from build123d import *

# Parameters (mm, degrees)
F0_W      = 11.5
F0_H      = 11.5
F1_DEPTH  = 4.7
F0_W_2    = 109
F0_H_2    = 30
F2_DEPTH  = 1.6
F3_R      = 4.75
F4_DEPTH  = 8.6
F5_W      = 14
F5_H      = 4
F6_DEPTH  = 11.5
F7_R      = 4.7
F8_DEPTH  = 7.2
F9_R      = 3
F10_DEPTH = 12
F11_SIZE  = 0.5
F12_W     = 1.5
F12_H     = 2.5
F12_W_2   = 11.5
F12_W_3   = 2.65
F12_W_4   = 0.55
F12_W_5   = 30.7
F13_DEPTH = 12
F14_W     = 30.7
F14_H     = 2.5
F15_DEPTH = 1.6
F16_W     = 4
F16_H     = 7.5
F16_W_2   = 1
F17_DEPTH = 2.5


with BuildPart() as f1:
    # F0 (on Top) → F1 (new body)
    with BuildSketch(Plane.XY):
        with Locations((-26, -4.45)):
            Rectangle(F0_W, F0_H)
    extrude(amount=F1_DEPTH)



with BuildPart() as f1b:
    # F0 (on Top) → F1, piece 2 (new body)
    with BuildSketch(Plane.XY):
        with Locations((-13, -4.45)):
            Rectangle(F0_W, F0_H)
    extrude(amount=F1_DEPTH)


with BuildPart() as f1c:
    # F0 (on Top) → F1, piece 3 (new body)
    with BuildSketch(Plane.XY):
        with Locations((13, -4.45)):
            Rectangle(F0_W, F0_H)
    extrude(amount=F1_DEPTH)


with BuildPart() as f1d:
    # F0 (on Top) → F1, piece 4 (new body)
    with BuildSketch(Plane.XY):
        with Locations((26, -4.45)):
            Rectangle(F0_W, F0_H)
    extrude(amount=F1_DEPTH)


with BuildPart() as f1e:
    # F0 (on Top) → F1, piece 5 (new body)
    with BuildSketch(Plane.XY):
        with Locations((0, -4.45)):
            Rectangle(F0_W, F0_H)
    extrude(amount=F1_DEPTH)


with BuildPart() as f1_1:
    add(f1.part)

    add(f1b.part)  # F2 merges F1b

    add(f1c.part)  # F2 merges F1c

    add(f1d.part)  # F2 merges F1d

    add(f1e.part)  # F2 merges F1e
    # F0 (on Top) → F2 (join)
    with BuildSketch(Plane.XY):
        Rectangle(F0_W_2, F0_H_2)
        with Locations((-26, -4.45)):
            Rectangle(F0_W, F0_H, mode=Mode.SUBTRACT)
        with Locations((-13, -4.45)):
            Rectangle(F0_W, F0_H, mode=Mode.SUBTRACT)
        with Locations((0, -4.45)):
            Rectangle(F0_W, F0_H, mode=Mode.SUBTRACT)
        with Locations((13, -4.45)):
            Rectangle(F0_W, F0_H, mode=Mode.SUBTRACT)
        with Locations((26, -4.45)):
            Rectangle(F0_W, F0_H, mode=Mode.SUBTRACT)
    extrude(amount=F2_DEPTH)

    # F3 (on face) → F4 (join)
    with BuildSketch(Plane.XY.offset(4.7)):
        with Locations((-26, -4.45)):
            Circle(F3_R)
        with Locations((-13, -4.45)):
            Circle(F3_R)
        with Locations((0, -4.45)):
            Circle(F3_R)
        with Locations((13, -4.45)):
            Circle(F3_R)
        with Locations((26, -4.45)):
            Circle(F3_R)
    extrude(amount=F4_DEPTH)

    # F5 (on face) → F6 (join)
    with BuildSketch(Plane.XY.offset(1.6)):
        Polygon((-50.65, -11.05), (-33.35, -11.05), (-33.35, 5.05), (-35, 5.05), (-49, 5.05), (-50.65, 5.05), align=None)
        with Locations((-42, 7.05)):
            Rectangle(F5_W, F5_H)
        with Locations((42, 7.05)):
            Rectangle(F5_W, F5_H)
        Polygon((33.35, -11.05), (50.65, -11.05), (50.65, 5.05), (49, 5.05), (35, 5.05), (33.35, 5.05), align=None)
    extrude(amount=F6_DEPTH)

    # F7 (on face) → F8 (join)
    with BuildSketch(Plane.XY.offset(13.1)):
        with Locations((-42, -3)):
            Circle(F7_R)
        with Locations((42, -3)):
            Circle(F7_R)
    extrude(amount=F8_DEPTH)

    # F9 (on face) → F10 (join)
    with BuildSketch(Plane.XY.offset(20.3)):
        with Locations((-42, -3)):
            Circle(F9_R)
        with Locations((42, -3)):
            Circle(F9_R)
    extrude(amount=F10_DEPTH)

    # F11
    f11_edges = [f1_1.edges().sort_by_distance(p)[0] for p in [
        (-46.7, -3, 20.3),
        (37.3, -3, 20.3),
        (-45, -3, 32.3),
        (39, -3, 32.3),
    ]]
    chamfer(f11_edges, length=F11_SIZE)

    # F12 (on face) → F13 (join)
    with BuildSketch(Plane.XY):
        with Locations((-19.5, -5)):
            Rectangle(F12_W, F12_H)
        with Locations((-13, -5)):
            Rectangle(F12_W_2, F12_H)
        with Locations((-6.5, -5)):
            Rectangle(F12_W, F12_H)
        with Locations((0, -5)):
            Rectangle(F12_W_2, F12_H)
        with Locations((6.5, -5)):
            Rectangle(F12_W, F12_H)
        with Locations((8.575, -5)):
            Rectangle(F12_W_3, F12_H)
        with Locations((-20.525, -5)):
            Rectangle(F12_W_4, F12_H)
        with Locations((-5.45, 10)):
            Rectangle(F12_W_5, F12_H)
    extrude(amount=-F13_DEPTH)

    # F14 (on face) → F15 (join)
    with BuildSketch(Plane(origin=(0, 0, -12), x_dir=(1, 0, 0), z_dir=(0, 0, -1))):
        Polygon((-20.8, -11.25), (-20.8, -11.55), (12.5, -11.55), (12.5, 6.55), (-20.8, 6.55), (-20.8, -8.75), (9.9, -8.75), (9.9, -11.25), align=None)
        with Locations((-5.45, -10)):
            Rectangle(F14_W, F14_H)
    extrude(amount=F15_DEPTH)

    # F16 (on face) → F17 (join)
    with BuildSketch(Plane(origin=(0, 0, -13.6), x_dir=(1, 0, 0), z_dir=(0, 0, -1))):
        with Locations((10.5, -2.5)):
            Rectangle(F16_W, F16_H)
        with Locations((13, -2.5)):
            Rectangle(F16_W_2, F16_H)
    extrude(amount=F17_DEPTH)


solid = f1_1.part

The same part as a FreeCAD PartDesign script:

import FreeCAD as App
import Part
import Sketcher
from FreeCAD import Vector


def edges_at(feature, points):
    """Names of the edges that pass closest to the given points."""
    edges = feature.Shape.Edges
    near = lambda p: min(range(len(edges)), key=lambda i: edges[i].distToShape(Part.Vertex(*p))[0])
    return sorted({f"Edge{near(p) + 1}" for p in points})


def add_polygon(sketch, points):
    """Adds a closed chain of lines whose ends are joined by coincident constraints."""
    first, n = sketch.GeometryCount, len(points)
    for a, b in zip(points, points[1:] + points[:1]):
        sketch.addGeometry(Part.LineSegment(App.Vector(*a, 0), App.Vector(*b, 0)), False)
    for i in range(n):
        sketch.addConstraint(Sketcher.Constraint("Coincident", first + i, 2, first + (i + 1) % n, 1))

doc = App.newDocument("Part")
body = doc.addObject("PartDesign::Body", "Body")

# Sketch on XY plane
sketch1 = doc.addObject("Sketcher::SketchObject", "Sketch")
body.addObject(sketch1)
sketch1.AttachmentSupport = (doc.XY_Plane, [""])
sketch1.MapMode = "FlatFace"
add_polygon(sketch1, [(-32, 1), (-32, -10), (-20, -10), (-20, 1)])  # lines 0-3
sketch1.addConstraint(Sketcher.Constraint("Vertical", 0))
sketch1.addConstraint(Sketcher.Constraint("Horizontal", 1))
sketch1.addConstraint(Sketcher.Constraint("Vertical", 2))
sketch1.addConstraint(Sketcher.Constraint("Horizontal", 3))
sketch1.addConstraint(Sketcher.Constraint("Equal", 3, 0))
sketch1.addConstraint(Sketcher.Constraint("DistanceX", 1, 1, 1, 2, 11.5))
sketch1.addConstraint(Sketcher.Constraint("DistanceY", 0, 2, -1, 1, 10.2))
sketch1.addConstraint(Sketcher.Constraint("DistanceX", 0, 2, -1, 1, 31.75))
pad1 = doc.addObject("PartDesign::Pad", "Pad")
body.addObject(pad1)
pad1.Profile = sketch1
pad1.Length = 4.7
body2 = doc.addObject("PartDesign::Body", "Body001")

# Sketch on XY plane
sketch2 = doc.addObject("Sketcher::SketchObject", "Sketch001")
body2.addObject(sketch2)
sketch2.AttachmentSupport = (doc.getObject("XY_Plane001"), [""])
sketch2.MapMode = "FlatFace"
add_polygon(sketch2, [(-19, 1), (-19, -10), (-7, -10), (-7, 1)])  # lines 0-3
sketch2.addConstraint(Sketcher.Constraint("Vertical", 0))
sketch2.addConstraint(Sketcher.Constraint("Horizontal", 1))
sketch2.addConstraint(Sketcher.Constraint("Vertical", 2))
sketch2.addConstraint(Sketcher.Constraint("Horizontal", 3))
sketch2.addConstraint(Sketcher.Constraint("Equal", 3, 0))
sketch2.addConstraint(Sketcher.Constraint("DistanceX", 1, 1, 1, 2, 11.5))
sketch2.addConstraint(Sketcher.Constraint("DistanceY", 0, 2, -1, 1, 10.2))
sketch2.addConstraint(Sketcher.Constraint("DistanceX", 0, 2, -1, 1, 18.75))
pad2 = doc.addObject("PartDesign::Pad", "Pad001")
body2.addObject(pad2)
pad2.Profile = sketch2
pad2.Length = 4.7
body3 = doc.addObject("PartDesign::Body", "Body002")

# Sketch on XY plane
sketch3 = doc.addObject("Sketcher::SketchObject", "Sketch002")
body3.addObject(sketch3)
sketch3.AttachmentSupport = (doc.getObject("XY_Plane002"), [""])
sketch3.MapMode = "FlatFace"
add_polygon(sketch3, [(7, 1), (7, -10), (19, -10), (19, 1)])  # lines 0-3
sketch3.addConstraint(Sketcher.Constraint("Vertical", 0))
sketch3.addConstraint(Sketcher.Constraint("Horizontal", 1))
sketch3.addConstraint(Sketcher.Constraint("Vertical", 2))
sketch3.addConstraint(Sketcher.Constraint("Horizontal", 3))
sketch3.addConstraint(Sketcher.Constraint("Equal", 3, 0))
sketch3.addConstraint(Sketcher.Constraint("DistanceX", 1, 1, 1, 2, 11.5))
sketch3.addConstraint(Sketcher.Constraint("DistanceY", 0, 2, -1, 1, 10.2))
sketch3.addConstraint(Sketcher.Constraint("DistanceX", -1, 1, 0, 2, 7.25))
pad3 = doc.addObject("PartDesign::Pad", "Pad002")
body3.addObject(pad3)
pad3.Profile = sketch3
pad3.Length = 4.7
body4 = doc.addObject("PartDesign::Body", "Body003")

# Sketch on XY plane
sketch4 = doc.addObject("Sketcher::SketchObject", "Sketch003")
body4.addObject(sketch4)
sketch4.AttachmentSupport = (doc.getObject("XY_Plane003"), [""])
sketch4.MapMode = "FlatFace"
add_polygon(sketch4, [(20, 1), (20, -10), (32, -10), (32, 1)])  # lines 0-3
sketch4.addConstraint(Sketcher.Constraint("Vertical", 0))
sketch4.addConstraint(Sketcher.Constraint("Horizontal", 1))
sketch4.addConstraint(Sketcher.Constraint("Vertical", 2))
sketch4.addConstraint(Sketcher.Constraint("Horizontal", 3))
sketch4.addConstraint(Sketcher.Constraint("Equal", 3, 0))
sketch4.addConstraint(Sketcher.Constraint("DistanceX", 1, 1, 1, 2, 11.5))
sketch4.addConstraint(Sketcher.Constraint("DistanceY", 0, 2, -1, 1, 10.2))
sketch4.addConstraint(Sketcher.Constraint("DistanceX", -1, 1, 0, 2, 20.25))
pad4 = doc.addObject("PartDesign::Pad", "Pad003")
body4.addObject(pad4)
pad4.Profile = sketch4
pad4.Length = 4.7
body5 = doc.addObject("PartDesign::Body", "Body004")

# Sketch on XY plane
sketch5 = doc.addObject("Sketcher::SketchObject", "Sketch004")
body5.addObject(sketch5)
sketch5.AttachmentSupport = (doc.getObject("XY_Plane004"), [""])
sketch5.MapMode = "FlatFace"
add_polygon(sketch5, [(-6, 1), (-6, -10), (6, -10), (6, 1)])  # lines 0-3
sketch5.addConstraint(Sketcher.Constraint("Vertical", 0))
sketch5.addConstraint(Sketcher.Constraint("Horizontal", 1))
sketch5.addConstraint(Sketcher.Constraint("Vertical", 2))
sketch5.addConstraint(Sketcher.Constraint("Horizontal", 3))
sketch5.addConstraint(Sketcher.Constraint("Equal", 3, 0))
sketch5.addConstraint(Sketcher.Constraint("DistanceX", 1, 1, 1, 2, 11.5))
sketch5.addConstraint(Sketcher.Constraint("DistanceY", 0, 2, -1, 1, 10.2))
sketch5.addConstraint(Sketcher.Constraint("DistanceX", 0, 2, -1, 1, 5.75))
pad5 = doc.addObject("PartDesign::Pad", "Pad004")
body5.addObject(pad5)
pad5.Profile = sketch5
pad5.Length = 4.7
body.AllowCompound = True
doc.recompute()

boolean = doc.addObject("PartDesign::Boolean", "Boolean")
body.addObject(boolean)
boolean.Type = "Fuse"
boolean.addObjects([body2])
doc.recompute()

boolean2 = doc.addObject("PartDesign::Boolean", "Boolean001")
body.addObject(boolean2)
boolean2.Type = "Fuse"
boolean2.addObjects([body3])
doc.recompute()

boolean3 = doc.addObject("PartDesign::Boolean", "Boolean002")
body.addObject(boolean3)
boolean3.Type = "Fuse"
boolean3.addObjects([body4])
doc.recompute()

boolean4 = doc.addObject("PartDesign::Boolean", "Boolean003")
body.addObject(boolean4)
boolean4.Type = "Fuse"
boolean4.addObjects([body5])

# Sketch on XY plane
sketch6 = doc.addObject("Sketcher::SketchObject", "Sketch005")
body.addObject(sketch6)
sketch6.AttachmentSupport = (doc.XY_Plane, [""])
sketch6.MapMode = "FlatFace"
add_polygon(sketch6, [(-54, 15), (-54, -15), (54, -15), (54, 15)])  # lines 0-3
add_polygon(sketch6, [(-20, -10), (-32, -10), (-32, 1), (-20, 1)])  # lines 4-7
add_polygon(sketch6, [(-7, -10), (-19, -10), (-19, 1), (-7, 1)])  # lines 8-11
add_polygon(sketch6, [(6, -10), (-6, -10), (-6, 1), (6, 1)])  # lines 12-15
add_polygon(sketch6, [(19, -10), (7, -10), (7, 1), (19, 1)])  # lines 16-19
add_polygon(sketch6, [(32, -10), (20, -10), (20, 1), (32, 1)])  # lines 20-23
sketch6.addConstraint(Sketcher.Constraint("Vertical", 0))
sketch6.addConstraint(Sketcher.Constraint("Horizontal", 1))
sketch6.addConstraint(Sketcher.Constraint("Vertical", 2))
sketch6.addConstraint(Sketcher.Constraint("Horizontal", 3))
sketch6.addConstraint(Sketcher.Constraint("Horizontal", 4))
sketch6.addConstraint(Sketcher.Constraint("Vertical", 5))
sketch6.addConstraint(Sketcher.Constraint("Horizontal", 6))
sketch6.addConstraint(Sketcher.Constraint("Vertical", 7))
sketch6.addConstraint(Sketcher.Constraint("Horizontal", 8))
sketch6.addConstraint(Sketcher.Constraint("Vertical", 9))
sketch6.addConstraint(Sketcher.Constraint("Horizontal", 10))
sketch6.addConstraint(Sketcher.Constraint("Vertical", 11))
sketch6.addConstraint(Sketcher.Constraint("Horizontal", 12))
sketch6.addConstraint(Sketcher.Constraint("Vertical", 13))
sketch6.addConstraint(Sketcher.Constraint("Horizontal", 14))
sketch6.addConstraint(Sketcher.Constraint("Vertical", 15))
sketch6.addConstraint(Sketcher.Constraint("Horizontal", 16))
sketch6.addConstraint(Sketcher.Constraint("Vertical", 17))
sketch6.addConstraint(Sketcher.Constraint("Horizontal", 18))
sketch6.addConstraint(Sketcher.Constraint("Vertical", 19))
sketch6.addConstraint(Sketcher.Constraint("Horizontal", 20))
sketch6.addConstraint(Sketcher.Constraint("Vertical", 21))
sketch6.addConstraint(Sketcher.Constraint("Horizontal", 22))
sketch6.addConstraint(Sketcher.Constraint("Vertical", 23))
sketch6.addConstraint(Sketcher.Constraint("Symmetric", 0, 2, 2, 2, -1, 1))
sketch6.addConstraint(Sketcher.Constraint("Symmetric", 11, 2, 16, 2, -2))
sketch6.addConstraint(Sketcher.Constraint("Symmetric", 9, 2, 18, 2, -2))
sketch6.addConstraint(Sketcher.Constraint("Symmetric", 7, 2, 20, 2, -2))
sketch6.addConstraint(Sketcher.Constraint("Symmetric", 5, 2, 22, 2, -2))
sketch6.addConstraint(Sketcher.Constraint("Horizontal", 7, 2, 8, 2))
sketch6.addConstraint(Sketcher.Constraint("Horizontal", 6, 2, 9, 2))
sketch6.addConstraint(Sketcher.Constraint("Horizontal", 11, 2, 12, 2))
sketch6.addConstraint(Sketcher.Constraint("Horizontal", 10, 2, 13, 2))
sketch6.addConstraint(Sketcher.Constraint("Equal", 6, 8))
sketch6.addConstraint(Sketcher.Constraint("Equal", 10, 12))
sketch6.addConstraint(Sketcher.Constraint("Equal", 22, 5))
sketch6.addConstraint(Sketcher.Constraint("DistanceX", 1, 1, 1, 2, 109.0))
sketch6.addConstraint(Sketcher.Constraint("DistanceY", 0, 2, 0, 1, 30.0))
sketch6.addConstraint(Sketcher.Constraint("DistanceX", 4, 2, 4, 1, 11.5))
sketch6.addConstraint(Sketcher.Constraint("DistanceX", 4, 2, 8, 2, 13.0))
sketch6.addConstraint(Sketcher.Constraint("DistanceX", 8, 2, 12, 2, 13.0))
sketch6.addConstraint(Sketcher.Constraint("DistanceX", 12, 2, 16, 2, 13.0))
sketch6.addConstraint(Sketcher.Constraint("DistanceY", 4, 2, -1, 1, 10.2))
pad6 = doc.addObject("PartDesign::Pad", "Pad005")
body.addObject(pad6)
pad6.Profile = sketch6
pad6.Length = 1.6

# Sketch on XY plane
sketch7 = doc.addObject("Sketcher::SketchObject", "Sketch006")
body.addObject(sketch7)
sketch7.AttachmentSupport = (doc.XY_Plane, [""])
sketch7.MapMode = "FlatFace"
sketch7.AttachmentOffset = App.Placement(Vector(0, 0, 4.7), App.Rotation())
sketch7.addGeometry(Part.Circle(Vector(-26, -4.5, 0), Vector(0, 0, 1), 4.8), False)
sketch7.addGeometry(Part.Circle(Vector(-13, -4.5, 0), Vector(0, 0, 1), 4.8), False)
sketch7.addGeometry(Part.Circle(Vector(0, -4.5, 0), Vector(0, 0, 1), 4.8), False)
sketch7.addGeometry(Part.Circle(Vector(13, -4.5, 0), Vector(0, 0, 1), 4.8), False)
sketch7.addGeometry(Part.Circle(Vector(26, -4.5, 0), Vector(0, 0, 1), 4.8), False)
sketch7.addConstraint(Sketcher.Constraint("Equal", 0, 1))
sketch7.addConstraint(Sketcher.Constraint("Equal", 1, 2))
sketch7.addConstraint(Sketcher.Constraint("Equal", 2, 3))
sketch7.addConstraint(Sketcher.Constraint("Equal", 3, 4))
sketch7.addConstraint(Sketcher.Constraint("Symmetric", 1, 3, 3, 3, -2))
sketch7.addConstraint(Sketcher.Constraint("Symmetric", 0, 3, 4, 3, -2))
sketch7.addConstraint(Sketcher.Constraint("PointOnObject", 2, 3, -2))
sketch7.addConstraint(Sketcher.Constraint("Horizontal", 0, 3, 1, 3))
sketch7.addConstraint(Sketcher.Constraint("Horizontal", 1, 3, 2, 3))
sketch7.addConstraint(Sketcher.Constraint("Diameter", 0, 9.5))
sketch7.addConstraint(Sketcher.Constraint("DistanceX", 0, 3, -1, 1, 26.0))
sketch7.addConstraint(Sketcher.Constraint("DistanceX", 1, 3, -1, 1, 13.0))
sketch7.addConstraint(Sketcher.Constraint("DistanceY", 0, 3, -1, 1, 4.45))
pad7 = doc.addObject("PartDesign::Pad", "Pad006")
body.addObject(pad7)
pad7.Profile = sketch7
pad7.Length = 8.6

# Sketch on XY plane
sketch8 = doc.addObject("Sketcher::SketchObject", "Sketch007")
body.addObject(sketch8)
sketch8.AttachmentSupport = (doc.XY_Plane, [""])
sketch8.MapMode = "FlatFace"
sketch8.AttachmentOffset = App.Placement(Vector(0, 0, 1.6), App.Rotation())
add_polygon(sketch8, [(-50.6, -11.1), (-33.4, -11.1), (-33.4, 5), (-35, 5), (-35, 9.1), (-49, 9.1), (-49, 5), (-50.6, 5)])  # lines 0-7
add_polygon(sketch8, [(35, 9.1), (35, 5), (33.4, 5), (33.4, -11.1), (50.6, -11.1), (50.6, 5), (49, 5), (49, 9.1)])  # lines 8-15
sketch8.addConstraint(Sketcher.Constraint("Horizontal", 0))
sketch8.addConstraint(Sketcher.Constraint("Vertical", 1))
sketch8.addConstraint(Sketcher.Constraint("Horizontal", 2))
sketch8.addConstraint(Sketcher.Constraint("Vertical", 3))
sketch8.addConstraint(Sketcher.Constraint("Horizontal", 4))
sketch8.addConstraint(Sketcher.Constraint("Vertical", 5))
sketch8.addConstraint(Sketcher.Constraint("Horizontal", 6))
sketch8.addConstraint(Sketcher.Constraint("Vertical", 7))
sketch8.addConstraint(Sketcher.Constraint("Vertical", 8))
sketch8.addConstraint(Sketcher.Constraint("Horizontal", 9))
sketch8.addConstraint(Sketcher.Constraint("Vertical", 10))
sketch8.addConstraint(Sketcher.Constraint("Horizontal", 11))
sketch8.addConstraint(Sketcher.Constraint("Vertical", 12))
sketch8.addConstraint(Sketcher.Constraint("Horizontal", 13))
sketch8.addConstraint(Sketcher.Constraint("Vertical", 14))
sketch8.addConstraint(Sketcher.Constraint("Horizontal", 15))
sketch8.addConstraint(Sketcher.Constraint("Symmetric", 2, 2, 8, 2, -2))
sketch8.addConstraint(Sketcher.Constraint("Symmetric", 0, 2, 10, 2, -2))
sketch8.addConstraint(Sketcher.Constraint("Symmetric", 6, 2, 12, 2, -2))
sketch8.addConstraint(Sketcher.Constraint("Symmetric", 4, 2, 14, 2, -2))
sketch8.addConstraint(Sketcher.Constraint("Horizontal", 2, 2, 5, 2))
sketch8.addConstraint(Sketcher.Constraint("Equal", 2, 6))
sketch8.addConstraint(Sketcher.Constraint("DistanceX", 4, 2, 4, 1, 14.0))
sketch8.addConstraint(Sketcher.Constraint("DistanceY", 3, 1, 3, 2, 4.0))
sketch8.addConstraint(Sketcher.Constraint("DistanceX", 0, 1, 0, 2, 17.3))
sketch8.addConstraint(Sketcher.Constraint("DistanceY", 1, 1, 1, 2, 16.1))
sketch8.addConstraint(Sketcher.Constraint("DistanceX", 2, 2, -1, 1, 35.0))
sketch8.addConstraint(Sketcher.Constraint("DistanceY", 0, 2, -1, 1, 11.05))
pad8 = doc.addObject("PartDesign::Pad", "Pad007")
body.addObject(pad8)
pad8.Profile = sketch8
pad8.Length = 11.5

# Sketch on XY plane
sketch9 = doc.addObject("Sketcher::SketchObject", "Sketch008")
body.addObject(sketch9)
sketch9.AttachmentSupport = (doc.XY_Plane, [""])
sketch9.MapMode = "FlatFace"
sketch9.AttachmentOffset = App.Placement(Vector(0, 0, 13.1), App.Rotation())
sketch9.addGeometry(Part.Circle(Vector(-42, -3, 0), Vector(0, 0, 1), 4.7), False)
sketch9.addGeometry(Part.Circle(Vector(42, -3, 0), Vector(0, 0, 1), 4.7), False)
sketch9.addConstraint(Sketcher.Constraint("Equal", 0, 1))
sketch9.addConstraint(Sketcher.Constraint("Symmetric", 0, 3, 1, 3, -2))
sketch9.addConstraint(Sketcher.Constraint("Diameter", 0, 9.4))
sketch9.addConstraint(Sketcher.Constraint("DistanceX", 0, 3, -1, 1, 42.0))
sketch9.addConstraint(Sketcher.Constraint("DistanceY", 0, 3, -1, 1, 3.0))
pad9 = doc.addObject("PartDesign::Pad", "Pad008")
body.addObject(pad9)
pad9.Profile = sketch9
pad9.Length = 7.2

# Sketch on XY plane
sketch10 = doc.addObject("Sketcher::SketchObject", "Sketch009")
body.addObject(sketch10)
sketch10.AttachmentSupport = (doc.XY_Plane, [""])
sketch10.MapMode = "FlatFace"
sketch10.AttachmentOffset = App.Placement(Vector(0, 0, 20.3), App.Rotation())
sketch10.addGeometry(Part.Circle(Vector(-42, -3, 0), Vector(0, 0, 1), 3), False)
sketch10.addGeometry(Part.Circle(Vector(42, -3, 0), Vector(0, 0, 1), 3), False)
sketch10.addConstraint(Sketcher.Constraint("Equal", 0, 1))
sketch10.addConstraint(Sketcher.Constraint("Symmetric", 0, 3, 1, 3, -2))
sketch10.addConstraint(Sketcher.Constraint("Diameter", 0, 6.0))
sketch10.addConstraint(Sketcher.Constraint("DistanceX", 0, 3, -1, 1, 42.0))
sketch10.addConstraint(Sketcher.Constraint("DistanceY", 0, 3, -1, 1, 3.0))
pad10 = doc.addObject("PartDesign::Pad", "Pad009")
body.addObject(pad10)
pad10.Profile = sketch10
pad10.Length = 12
doc.recompute()

chamfer = doc.addObject("PartDesign::Chamfer", "Chamfer")
body.addObject(chamfer)
chamfer.Base = (pad10, edges_at(pad10, [
    (-46.7, -3, 20.3),
    (37.3, -3, 20.3),
    (-45, -3, 32.3),
    (39, -3, 32.3),
]))
chamfer.Size = 0.5

# Sketch on XY plane
sketch11 = doc.addObject("Sketcher::SketchObject", "Sketch010")
body.addObject(sketch11)
sketch11.AttachmentSupport = (doc.XY_Plane, [""])
sketch11.MapMode = "FlatFace"
add_polygon(sketch11, [(9.9, -6.2), (9.9, -3.8), (-20.8, -3.8), (-20.8, -6.2)])  # lines 0-3
add_polygon(sketch11, [(-20.8, 11.2), (-20.8, 8.8), (9.9, 8.8), (9.9, 11.2)])  # lines 4-7
sketch11.addConstraint(Sketcher.Constraint("Vertical", 0))
sketch11.addConstraint(Sketcher.Constraint("Horizontal", 1))
sketch11.addConstraint(Sketcher.Constraint("Vertical", 2))
sketch11.addConstraint(Sketcher.Constraint("Horizontal", 3))
sketch11.addConstraint(Sketcher.Constraint("Vertical", 4))
sketch11.addConstraint(Sketcher.Constraint("Horizontal", 5))
sketch11.addConstraint(Sketcher.Constraint("Vertical", 6))
sketch11.addConstraint(Sketcher.Constraint("Horizontal", 7))
sketch11.addConstraint(Sketcher.Constraint("Vertical", 2, 2, 4, 2))
sketch11.addConstraint(Sketcher.Constraint("Vertical", 3, 2, 5, 2))
sketch11.addConstraint(Sketcher.Constraint("Equal", 2, 4))
sketch11.addConstraint(Sketcher.Constraint("DistanceX", 1, 2, 1, 1, 30.7))
sketch11.addConstraint(Sketcher.Constraint("DistanceY", 0, 1, 0, 2, 2.5))
sketch11.addConstraint(Sketcher.Constraint("DistanceY", 2, 2, 4, 2, 15.0))
sketch11.addConstraint(Sketcher.Constraint("DistanceX", -1, 1, 0, 2, 9.9))
sketch11.addConstraint(Sketcher.Constraint("DistanceY", 0, 2, -1, 1, 3.75))
pad11 = doc.addObject("PartDesign::Pad", "Pad010")
body.addObject(pad11)
pad11.Profile = sketch11
pad11.Length = 12
pad11.Reversed = True

# Sketch on XY plane
sketch12 = doc.addObject("Sketcher::SketchObject", "Sketch011")
body.addObject(sketch12)
sketch12.AttachmentSupport = (doc.XY_Plane, [""])
sketch12.MapMode = "FlatFace"
sketch12.AttachmentOffset = App.Placement(Vector(0, 0, -12), App.Rotation())
add_polygon(sketch12, [(-21, 12), (12, 12), (12, -7), (-21, -7)])  # lines 0-3
sketch12.addConstraint(Sketcher.Constraint("Horizontal", 0))
sketch12.addConstraint(Sketcher.Constraint("Vertical", 1))
sketch12.addConstraint(Sketcher.Constraint("Horizontal", 2))
sketch12.addConstraint(Sketcher.Constraint("Vertical", 3))
sketch12.addConstraint(Sketcher.Constraint("DistanceX", 0, 1, 0, 2, 33.3))
sketch12.addConstraint(Sketcher.Constraint("DistanceY", 1, 2, 1, 1, 18.1))
sketch12.addConstraint(Sketcher.Constraint("DistanceX", -1, 1, 0, 2, 12.5))
sketch12.addConstraint(Sketcher.Constraint("DistanceY", -1, 1, 0, 2, 11.55))
pad12 = doc.addObject("PartDesign::Pad", "Pad011")
body.addObject(pad12)
pad12.Profile = sketch12
pad12.Length = 1.6
pad12.Reversed = True

# Sketch on XY plane
sketch13 = doc.addObject("Sketcher::SketchObject", "Sketch012")
body.addObject(sketch13)
sketch13.AttachmentSupport = (doc.XY_Plane, [""])
sketch13.MapMode = "FlatFace"
sketch13.AttachmentOffset = App.Placement(Vector(0, 0, -13.6), App.Rotation())
add_polygon(sketch13, [(8, -1), (8, 6), (14, 6), (14, -1)])  # lines 0-3
sketch13.addConstraint(Sketcher.Constraint("Vertical", 0))
sketch13.addConstraint(Sketcher.Constraint("Horizontal", 1))
sketch13.addConstraint(Sketcher.Constraint("Vertical", 2))
sketch13.addConstraint(Sketcher.Constraint("Horizontal", 3))
sketch13.addConstraint(Sketcher.Constraint("DistanceX", 1, 1, 1, 2, 5.0))
sketch13.addConstraint(Sketcher.Constraint("DistanceY", 0, 1, 0, 2, 7.5))
sketch13.addConstraint(Sketcher.Constraint("DistanceX", -1, 1, 0, 2, 8.5))
sketch13.addConstraint(Sketcher.Constraint("DistanceY", -1, 1, 0, 2, 6.25))
pad13 = doc.addObject("PartDesign::Pad", "Pad012")
body.addObject(pad13)
pad13.Profile = sketch13
pad13.Length = 2.5
pad13.Reversed = True

doc.recompute()
